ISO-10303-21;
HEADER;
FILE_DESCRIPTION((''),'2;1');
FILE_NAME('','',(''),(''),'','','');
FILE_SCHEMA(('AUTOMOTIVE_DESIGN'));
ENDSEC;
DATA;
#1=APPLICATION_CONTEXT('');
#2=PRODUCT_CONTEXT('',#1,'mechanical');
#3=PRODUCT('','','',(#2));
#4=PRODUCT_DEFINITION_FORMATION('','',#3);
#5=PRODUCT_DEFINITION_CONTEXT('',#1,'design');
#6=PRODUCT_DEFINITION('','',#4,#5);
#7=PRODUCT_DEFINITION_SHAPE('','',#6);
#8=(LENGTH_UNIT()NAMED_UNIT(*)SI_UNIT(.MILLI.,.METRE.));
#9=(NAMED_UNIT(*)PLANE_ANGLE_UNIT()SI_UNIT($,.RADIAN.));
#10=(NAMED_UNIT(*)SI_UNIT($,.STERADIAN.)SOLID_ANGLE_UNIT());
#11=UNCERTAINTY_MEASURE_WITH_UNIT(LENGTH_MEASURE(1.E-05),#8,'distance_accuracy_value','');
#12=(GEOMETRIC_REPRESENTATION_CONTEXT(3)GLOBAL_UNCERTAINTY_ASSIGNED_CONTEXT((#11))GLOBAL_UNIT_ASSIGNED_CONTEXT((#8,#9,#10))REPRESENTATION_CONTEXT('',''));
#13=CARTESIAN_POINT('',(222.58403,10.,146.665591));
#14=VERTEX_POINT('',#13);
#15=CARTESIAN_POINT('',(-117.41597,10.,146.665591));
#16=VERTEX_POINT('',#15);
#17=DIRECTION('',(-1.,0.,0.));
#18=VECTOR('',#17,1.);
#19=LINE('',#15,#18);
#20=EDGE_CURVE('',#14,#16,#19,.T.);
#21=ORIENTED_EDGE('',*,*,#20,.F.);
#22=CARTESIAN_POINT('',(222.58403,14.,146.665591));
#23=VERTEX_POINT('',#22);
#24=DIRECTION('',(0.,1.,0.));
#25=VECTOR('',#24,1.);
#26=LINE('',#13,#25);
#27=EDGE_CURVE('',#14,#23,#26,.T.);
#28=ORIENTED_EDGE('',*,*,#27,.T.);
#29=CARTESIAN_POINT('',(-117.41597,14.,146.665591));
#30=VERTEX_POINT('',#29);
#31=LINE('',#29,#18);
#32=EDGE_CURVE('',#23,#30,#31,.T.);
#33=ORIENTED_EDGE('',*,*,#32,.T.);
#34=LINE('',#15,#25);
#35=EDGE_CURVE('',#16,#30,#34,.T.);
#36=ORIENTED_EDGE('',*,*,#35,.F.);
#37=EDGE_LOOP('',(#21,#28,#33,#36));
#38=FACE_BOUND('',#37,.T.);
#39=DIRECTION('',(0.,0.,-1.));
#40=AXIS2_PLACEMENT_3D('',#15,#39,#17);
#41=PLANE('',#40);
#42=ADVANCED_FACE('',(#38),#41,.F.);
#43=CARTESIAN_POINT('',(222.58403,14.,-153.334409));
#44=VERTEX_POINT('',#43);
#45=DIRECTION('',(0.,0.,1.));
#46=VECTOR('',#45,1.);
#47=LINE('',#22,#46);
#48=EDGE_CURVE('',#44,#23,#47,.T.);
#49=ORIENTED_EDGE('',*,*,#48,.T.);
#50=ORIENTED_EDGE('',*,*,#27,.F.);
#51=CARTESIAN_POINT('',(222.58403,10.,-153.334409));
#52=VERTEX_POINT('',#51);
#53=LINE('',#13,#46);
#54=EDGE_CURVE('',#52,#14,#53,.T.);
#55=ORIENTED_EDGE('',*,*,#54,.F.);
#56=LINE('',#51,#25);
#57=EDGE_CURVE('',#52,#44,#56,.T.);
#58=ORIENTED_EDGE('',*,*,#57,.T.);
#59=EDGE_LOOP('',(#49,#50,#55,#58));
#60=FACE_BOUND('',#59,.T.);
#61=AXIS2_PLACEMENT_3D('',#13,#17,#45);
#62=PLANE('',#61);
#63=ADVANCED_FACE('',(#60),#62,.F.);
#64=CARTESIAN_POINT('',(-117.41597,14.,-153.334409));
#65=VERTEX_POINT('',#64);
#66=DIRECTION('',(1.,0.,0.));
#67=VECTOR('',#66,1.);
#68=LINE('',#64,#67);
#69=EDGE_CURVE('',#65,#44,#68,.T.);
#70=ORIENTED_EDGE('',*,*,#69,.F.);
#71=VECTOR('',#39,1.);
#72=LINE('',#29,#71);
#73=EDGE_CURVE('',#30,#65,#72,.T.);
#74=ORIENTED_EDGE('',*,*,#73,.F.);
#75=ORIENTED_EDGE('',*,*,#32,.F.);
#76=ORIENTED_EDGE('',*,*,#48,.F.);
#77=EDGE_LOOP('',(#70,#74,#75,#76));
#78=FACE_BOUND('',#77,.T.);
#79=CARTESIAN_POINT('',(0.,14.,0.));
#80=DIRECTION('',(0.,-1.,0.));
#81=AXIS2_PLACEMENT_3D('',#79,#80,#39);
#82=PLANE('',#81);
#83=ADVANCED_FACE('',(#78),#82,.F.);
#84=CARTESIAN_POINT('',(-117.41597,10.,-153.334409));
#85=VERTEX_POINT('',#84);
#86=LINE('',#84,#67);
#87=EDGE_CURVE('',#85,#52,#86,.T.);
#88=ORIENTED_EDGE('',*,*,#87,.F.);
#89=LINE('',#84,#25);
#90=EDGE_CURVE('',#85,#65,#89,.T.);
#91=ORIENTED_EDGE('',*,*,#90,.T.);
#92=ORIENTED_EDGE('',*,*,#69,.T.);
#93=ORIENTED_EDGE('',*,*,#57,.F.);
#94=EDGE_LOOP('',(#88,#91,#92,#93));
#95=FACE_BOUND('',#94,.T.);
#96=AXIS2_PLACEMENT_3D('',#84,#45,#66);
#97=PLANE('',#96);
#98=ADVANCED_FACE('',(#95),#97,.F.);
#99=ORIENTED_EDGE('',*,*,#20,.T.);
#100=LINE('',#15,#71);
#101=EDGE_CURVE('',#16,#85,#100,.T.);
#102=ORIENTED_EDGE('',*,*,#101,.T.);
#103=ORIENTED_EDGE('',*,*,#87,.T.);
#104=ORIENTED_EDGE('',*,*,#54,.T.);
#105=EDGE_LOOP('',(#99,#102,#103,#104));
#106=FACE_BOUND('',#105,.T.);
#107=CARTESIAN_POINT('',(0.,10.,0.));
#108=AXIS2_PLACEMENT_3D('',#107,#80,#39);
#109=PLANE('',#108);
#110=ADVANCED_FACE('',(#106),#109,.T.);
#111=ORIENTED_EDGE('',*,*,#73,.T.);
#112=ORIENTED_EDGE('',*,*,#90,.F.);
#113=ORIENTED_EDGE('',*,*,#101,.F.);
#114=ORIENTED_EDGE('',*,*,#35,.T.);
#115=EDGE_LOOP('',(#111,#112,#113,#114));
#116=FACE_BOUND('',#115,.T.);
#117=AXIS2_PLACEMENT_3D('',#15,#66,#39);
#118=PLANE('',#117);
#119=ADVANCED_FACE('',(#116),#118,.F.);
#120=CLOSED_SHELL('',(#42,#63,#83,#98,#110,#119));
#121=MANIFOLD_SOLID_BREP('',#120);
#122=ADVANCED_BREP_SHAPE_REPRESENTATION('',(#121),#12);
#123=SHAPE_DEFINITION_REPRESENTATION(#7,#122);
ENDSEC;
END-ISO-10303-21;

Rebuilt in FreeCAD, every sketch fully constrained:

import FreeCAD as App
import Part
import Sketcher
from FreeCAD import Vector
Q = App.Units.Quantity


def add_polygon(sketch, points):
    """Adds a closed chain of lines whose ends are joined by coincident constraints."""
    first, n = sketch.GeometryCount, len(points)
    for a, b in zip(points, points[1:] + points[:1]):
        sketch.addGeometry(Part.LineSegment(App.Vector(*a, 0), App.Vector(*b, 0)), False)
    for i in range(n):
        sketch.addConstraint(Sketcher.Constraint("Coincident", first + i, 2, first + (i + 1) % n, 1))

doc = App.newDocument("Part")
body = doc.addObject("PartDesign::Body", "Body")

# Sketch on XZ plane
sketch1 = body.newObject("Sketcher::SketchObject", "Sketch")
sketch1.AttachmentSupport = (doc.getObject("XZ_Plane"), [""])
sketch1.MapMode = "FlatFace"
sketch1.AttachmentOffset = App.Placement(Vector(0, 0, -10), App.Rotation())
add_polygon(sketch1, [(-117.41597, 146.665591), (222.58403, 146.665591), (222.58403, -153.334409), (-117.41597, -153.334409)])  # lines 0-3
sketch1.addConstraint(Sketcher.Constraint("Horizontal", 0))
sketch1.addConstraint(Sketcher.Constraint("Vertical", 1))
sketch1.addConstraint(Sketcher.Constraint("Horizontal", 2))
sketch1.addConstraint(Sketcher.Constraint("Vertical", 3))
sketch1.addConstraint(Sketcher.Constraint("DistanceX", 0, 1, 0, 2, Q("340 mm")))
sketch1.addConstraint(Sketcher.Constraint("DistanceY", 1, 2, 1, 1, Q("300 mm")))
sketch1.addConstraint(Sketcher.Constraint("DistanceX", -1, 1, 0, 2, Q("222.58403 mm")))
sketch1.addConstraint(Sketcher.Constraint("DistanceY", -1, 1, 0, 2, Q("146.665591 mm")))
pad1 = body.newObject("PartDesign::Pad", "Pad")
pad1.Profile = sketch1
pad1.Length = 4
pad1.Reversed = True

doc.recompute()
